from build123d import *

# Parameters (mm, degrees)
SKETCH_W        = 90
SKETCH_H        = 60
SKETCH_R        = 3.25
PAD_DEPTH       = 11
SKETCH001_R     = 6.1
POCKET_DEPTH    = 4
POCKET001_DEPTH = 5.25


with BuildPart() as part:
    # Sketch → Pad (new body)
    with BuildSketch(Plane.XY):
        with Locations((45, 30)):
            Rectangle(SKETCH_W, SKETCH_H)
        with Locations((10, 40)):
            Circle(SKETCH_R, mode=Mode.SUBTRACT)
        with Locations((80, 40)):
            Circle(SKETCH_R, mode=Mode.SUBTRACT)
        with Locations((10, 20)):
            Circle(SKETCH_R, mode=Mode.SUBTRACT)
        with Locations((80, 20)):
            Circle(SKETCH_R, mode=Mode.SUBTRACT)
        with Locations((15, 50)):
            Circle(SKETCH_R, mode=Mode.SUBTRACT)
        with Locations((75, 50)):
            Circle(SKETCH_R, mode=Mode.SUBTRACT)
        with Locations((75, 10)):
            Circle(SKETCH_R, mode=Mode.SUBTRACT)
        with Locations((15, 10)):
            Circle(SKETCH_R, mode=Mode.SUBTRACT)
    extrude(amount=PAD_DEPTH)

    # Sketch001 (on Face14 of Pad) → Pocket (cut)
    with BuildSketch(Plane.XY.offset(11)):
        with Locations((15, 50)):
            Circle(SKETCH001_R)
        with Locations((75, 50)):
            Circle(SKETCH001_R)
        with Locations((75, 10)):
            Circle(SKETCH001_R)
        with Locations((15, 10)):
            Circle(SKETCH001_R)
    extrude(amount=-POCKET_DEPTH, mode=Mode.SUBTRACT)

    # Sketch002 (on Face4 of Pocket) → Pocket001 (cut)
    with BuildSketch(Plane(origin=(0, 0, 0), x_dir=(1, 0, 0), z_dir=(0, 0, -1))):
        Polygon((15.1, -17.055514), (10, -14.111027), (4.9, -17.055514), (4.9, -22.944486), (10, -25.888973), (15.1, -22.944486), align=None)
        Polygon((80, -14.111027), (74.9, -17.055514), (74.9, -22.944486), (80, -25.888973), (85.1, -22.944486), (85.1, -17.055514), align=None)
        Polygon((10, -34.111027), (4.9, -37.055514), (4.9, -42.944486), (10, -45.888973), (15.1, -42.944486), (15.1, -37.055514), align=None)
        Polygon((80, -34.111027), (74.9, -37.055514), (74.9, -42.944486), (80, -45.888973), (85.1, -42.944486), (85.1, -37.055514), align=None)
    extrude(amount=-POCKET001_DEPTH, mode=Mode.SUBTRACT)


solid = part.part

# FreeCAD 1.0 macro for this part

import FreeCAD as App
import Part
import Sketcher

V = App.Vector
Q = App.Units.Quantity

doc = App.newDocument("Part")
body = doc.addObject("PartDesign::Body", "Body")

# Sketch on XY plane
sketch1 = doc.addObject("Sketcher::SketchObject", "Sketch")
body.addObject(sketch1)
sketch1.AttachmentSupport = (doc.XY_Plane, [""])
sketch1.MapMode = "FlatFace"
sketch1.addGeometry([
    Part.LineSegment(V(0, 60, 0), V(0, 0, 0)),  # 0
    Part.LineSegment(V(0, 0, 0), V(90, 0, 0)),  # 1
    Part.LineSegment(V(90, 0, 0), V(90, 60, 0)),  # 2
    Part.LineSegment(V(90, 60, 0), V(0, 60, 0)),  # 3
    Part.Circle(V(15, 10, 0), V(0, 0, 1), 3.25),  # 4
    Part.Circle(V(10, 20, 0), V(0, 0, 1), 3.25),  # 5
    Part.Circle(V(75, 10, 0), V(0, 0, 1), 3.25),  # 6
    Part.Circle(V(80, 20, 0), V(0, 0, 1), 3.25),  # 7
    Part.Circle(V(10, 40, 0), V(0, 0, 1), 3.25),  # 8
    Part.Circle(V(15, 50, 0), V(0, 0, 1), 3.25),  # 9
    Part.Circle(V(80, 40, 0), V(0, 0, 1), 3.25),  # 10
    Part.Circle(V(75, 50, 0), V(0, 0, 1), 3.25),  # 11
], False)
sketch1.addConstraint([
    Sketcher.Constraint("Coincident", 0, 2, 1, 1),
    Sketcher.Constraint("Coincident", 1, 2, 2, 1),
    Sketcher.Constraint("Coincident", 2, 2, 3, 1),
    Sketcher.Constraint("Coincident", 3, 2, 0, 1),
    Sketcher.Constraint("Vertical", 0),
    Sketcher.Constraint("Horizontal", 1),
    Sketcher.Constraint("Vertical", 2),
    Sketcher.Constraint("Horizontal", 3),
    Sketcher.Constraint("Coincident", 0, 2, -1, 1),
    Sketcher.Constraint("Equal", 4, 5),
    Sketcher.Constraint("Equal", 5, 6),
    Sketcher.Constraint("Equal", 6, 7),
    Sketcher.Constraint("Equal", 7, 8),
    Sketcher.Constraint("Equal", 8, 9),
    Sketcher.Constraint("Equal", 9, 10),
    Sketcher.Constraint("Equal", 10, 11),
    Sketcher.Constraint("Horizontal", 4, 3, 6, 3),
    Sketcher.Constraint("Horizontal", 5, 3, 7, 3),
    Sketcher.Constraint("Horizontal", 8, 3, 10, 3),
    Sketcher.Constraint("Horizontal", 9, 3, 11, 3),
    Sketcher.Constraint("Vertical", 5, 3, 8, 3),
    Sketcher.Constraint("Vertical", 4, 3, 9, 3),
    Sketcher.Constraint("Vertical", 7, 3, 10, 3),
    Sketcher.Constraint("Vertical", 6, 3, 11, 3),
    Sketcher.Constraint("Diameter", 4, 6.5),
    Sketcher.Constraint("DistanceX", 1, 1, 1, 2, 90.0),
    Sketcher.Constraint("DistanceY", 0, 2, 0, 1, 60.0),
    Sketcher.Constraint("DistanceX", -1, 1, 4, 3, 15.0),
    Sketcher.Constraint("DistanceY", -1, 1, 4, 3, 10.0),
    Sketcher.Constraint("DistanceX", -1, 1, 5, 3, 10.0),
    Sketcher.Constraint("DistanceY", -1, 1, 5, 3, 20.0),
    Sketcher.Constraint("DistanceX", -1, 1, 6, 3, 75.0),
    Sketcher.Constraint("DistanceX", -1, 1, 7, 3, 80.0),
    Sketcher.Constraint("DistanceY", -1, 1, 8, 3, 40.0),
    Sketcher.Constraint("DistanceY", -1, 1, 9, 3, 50.0),
])
pad1 = doc.addObject("PartDesign::Pad", "Pad")
body.addObject(pad1)
pad1.Profile = sketch1
pad1.Length = 11

# Sketch on XY plane
sketch2 = doc.addObject("Sketcher::SketchObject", "Sketch001")
body.addObject(sketch2)
sketch2.AttachmentSupport = (doc.XY_Plane, [""])
sketch2.MapMode = "FlatFace"
sketch2.AttachmentOffset = App.Placement(V(0, 0, 11), App.Rotation())
sketch2.addGeometry([
    Part.Circle(V(15, 50, 0), V(0, 0, 1), 6.1),
    Part.Circle(V(75, 50, 0), V(0, 0, 1), 6.1),
    Part.Circle(V(75, 10, 0), V(0, 0, 1), 6.1),
    Part.Circle(V(15, 10, 0), V(0, 0, 1), 6.1),
], False)
sketch2.addConstraint([
    Sketcher.Constraint("Equal", 0, 1),
    Sketcher.Constraint("Equal", 1, 2),
    Sketcher.Constraint("Equal", 2, 3),
    Sketcher.Constraint("Horizontal", 0, 3, 1, 3),
    Sketcher.Constraint("Horizontal", 2, 3, 3, 3),
    Sketcher.Constraint("Vertical", 1, 3, 2, 3),
    Sketcher.Constraint("Vertical", 0, 3, 3, 3),
    Sketcher.Constraint("Diameter", 0, 12.2),
    Sketcher.Constraint("DistanceX", -1, 1, 0, 3, 15.0),
    Sketcher.Constraint("DistanceY", -1, 1, 0, 3, 50.0),
    Sketcher.Constraint("DistanceX", -1, 1, 1, 3, 75.0),
    Sketcher.Constraint("DistanceY", -1, 1, 2, 3, 10.0),
])
pocket1 = doc.addObject("PartDesign::Pocket", "Pocket")
body.addObject(pocket1)
pocket1.Profile = sketch2
pocket1.Length = 4

# Sketch on XY plane
sketch3 = doc.addObject("Sketcher::SketchObject", "Sketch002")
body.addObject(sketch3)
sketch3.AttachmentSupport = (doc.XY_Plane, [""])
sketch3.MapMode = "FlatFace"
sketch3.addGeometry([
    Part.LineSegment(V(15.1, 17.055514, 0), V(10, 14.111027, 0)),  # 0
    Part.LineSegment(V(10, 14.111027, 0), V(4.9, 17.055514, 0)),  # 1
    Part.LineSegment(V(4.9, 17.055514, 0), V(4.9, 22.944486, 0)),  # 2
    Part.LineSegment(V(4.9, 22.944486, 0), V(10, 25.888973, 0)),  # 3
    Part.LineSegment(V(10, 25.888973, 0), V(15.1, 22.944486, 0)),  # 4
    Part.LineSegment(V(15.1, 22.944486, 0), V(15.1, 17.055514, 0)),  # 5
    Part.LineSegment(V(80, 14.111027, 0), V(74.9, 17.055514, 0)),  # 6
    Part.LineSegment(V(74.9, 17.055514, 0), V(74.9, 22.944486, 0)),  # 7
    Part.LineSegment(V(74.9, 22.944486, 0), V(80, 25.888973, 0)),  # 8
    Part.LineSegment(V(80, 25.888973, 0), V(85.1, 22.944486, 0)),  # 9
    Part.LineSegment(V(85.1, 22.944486, 0), V(85.1, 17.055514, 0)),  # 10
    Part.LineSegment(V(85.1, 17.055514, 0), V(80, 14.111027, 0)),  # 11
    Part.LineSegment(V(10, 34.111027, 0), V(4.9, 37.055514, 0)),  # 12
    Part.LineSegment(V(4.9, 37.055514, 0), V(4.9, 42.944486, 0)),  # 13
    Part.LineSegment(V(4.9, 42.944486, 0), V(10, 45.888973, 0)),  # 14
    Part.LineSegment(V(10, 45.888973, 0), V(15.1, 42.944486, 0)),  # 15
    Part.LineSegment(V(15.1, 42.944486, 0), V(15.1, 37.055514, 0)),  # 16
    Part.LineSegment(V(15.1, 37.055514, 0), V(10, 34.111027, 0)),  # 17
    Part.LineSegment(V(80, 34.111027, 0), V(74.9, 37.055514, 0)),  # 18
    Part.LineSegment(V(74.9, 37.055514, 0), V(74.9, 42.944486, 0)),  # 19
    Part.LineSegment(V(74.9, 42.944486, 0), V(80, 45.888973, 0)),  # 20
    Part.LineSegment(V(80, 45.888973, 0), V(85.1, 42.944486, 0)),  # 21
    Part.LineSegment(V(85.1, 42.944486, 0), V(85.1, 37.055514, 0)),  # 22
    Part.LineSegment(V(85.1, 37.055514, 0), V(80, 34.111027, 0)),  # 23
], False)
sketch3.addConstraint([
    Sketcher.Constraint("Coincident", 0, 2, 1, 1),
    Sketcher.Constraint("Coincident", 1, 2, 2, 1),
    Sketcher.Constraint("Coincident", 2, 2, 3, 1),
    Sketcher.Constraint("Coincident", 3, 2, 4, 1),
    Sketcher.Constraint("Coincident", 4, 2, 5, 1),
    Sketcher.Constraint("Coincident", 5, 2, 0, 1),
    Sketcher.Constraint("Coincident", 6, 2, 7, 1),
    Sketcher.Constraint("Coincident", 7, 2, 8, 1),
    Sketcher.Constraint("Coincident", 8, 2, 9, 1),
    Sketcher.Constraint("Coincident", 9, 2, 10, 1),
    Sketcher.Constraint("Coincident", 10, 2, 11, 1),
    Sketcher.Constraint("Coincident", 11, 2, 6, 1),
    Sketcher.Constraint("Coincident", 12, 2, 13, 1),
    Sketcher.Constraint("Coincident", 13, 2, 14, 1),
    Sketcher.Constraint("Coincident", 14, 2, 15, 1),
    Sketcher.Constraint("Coincident", 15, 2, 16, 1),
    Sketcher.Constraint("Coincident", 16, 2, 17, 1),
    Sketcher.Constraint("Coincident", 17, 2, 12, 1),
    Sketcher.Constraint("Coincident", 18, 2, 19, 1),
    Sketcher.Constraint("Coincident", 19, 2, 20, 1),
    Sketcher.Constraint("Coincident", 20, 2, 21, 1),
    Sketcher.Constraint("Coincident", 21, 2, 22, 1),
    Sketcher.Constraint("Coincident", 22, 2, 23, 1),
    Sketcher.Constraint("Coincident", 23, 2, 18, 1),
    Sketcher.Constraint("Vertical", 2),
    Sketcher.Constraint("Vertical", 5),
    Sketcher.Constraint("Vertical", 7),
    Sketcher.Constraint("Vertical", 10),
    Sketcher.Constraint("Vertical", 13),
    Sketcher.Constraint("Vertical", 16),
    Sketcher.Constraint("Vertical", 19),
    Sketcher.Constraint("Vertical", 22),
    Sketcher.Constraint("Parallel", 0, 3),
    Sketcher.Constraint("Parallel", 1, 4),
    Sketcher.Constraint("Parallel", 4, 6),
    Sketcher.Constraint("Parallel", 3, 8),
    Sketcher.Constraint("Parallel", 6, 9),
    Sketcher.Constraint("Parallel", 8, 11),
    Sketcher.Constraint("Parallel", 9, 12),
    Sketcher.Constraint("Parallel", 11, 14),
    Sketcher.Constraint("Parallel", 12, 15),
    Sketcher.Constraint("Parallel", 14, 17),
    Sketcher.Constraint("Parallel", 15, 18),
    Sketcher.Constraint("Parallel", 17, 20),
    Sketcher.Constraint("Parallel", 18, 21),
    Sketcher.Constraint("Parallel", 20, 23),
    Sketcher.Constraint("Horizontal", 2, 2, 4, 2),
    Sketcher.Constraint("Horizontal", 1, 2, 5, 2),
    Sketcher.Constraint("Horizontal", 5, 2, 6, 2),
    Sketcher.Constraint("Horizontal", 4, 2, 7, 2),
    Sketcher.Constraint("Horizontal", 3, 2, 8, 2),
    Sketcher.Constraint("Horizontal", 7, 2, 9, 2),
    Sketcher.Constraint("Horizontal", 6, 2, 10, 2),
    Sketcher.Constraint("Horizontal", 13, 2, 15, 2),
    Sketcher.Constraint("Horizontal", 12, 2, 16, 2),
    Sketcher.Constraint("Horizontal", 16, 2, 18, 2),
    Sketcher.Constraint("Horizontal", 15, 2, 19, 2),
    Sketcher.Constraint("Horizontal", 14, 2, 20, 2),
    Sketcher.Constraint("Horizontal", 19, 2, 21, 2),
    Sketcher.Constraint("Horizontal", 18, 2, 22, 2),
    Sketcher.Constraint("Vertical", 0, 2, 3, 2),
    Sketcher.Constraint("Vertical", 2, 2, 12, 2),
    Sketcher.Constraint("Vertical", 3, 2, 14, 2),
    Sketcher.Constraint("Vertical", 7, 2, 18, 2),
    Sketcher.Constraint("Equal", 10, 13),
    Sketcher.Constraint("Angle", 0, Q("-149.999995 deg")),
    Sketcher.Constraint("DistanceX", -1, 1, 0, 2, 10.0),
    Sketcher.Constraint("DistanceX", -1, 1, 8, 2, 80.0),
    Sketcher.Constraint("DistanceY", 1, 2, 12, 2, 20.0),
    Sketcher.Constraint("DistanceX", -1, 1, 1, 2, 4.9),
    Sketcher.Constraint("DistanceY", 13, 1, 13, 2, 5.888972),
    Sketcher.Constraint("DistanceY", -1, 1, 0, 2, 14.111027),
])
pocket2 = doc.addObject("PartDesign::Pocket", "Pocket001")
body.addObject(pocket2)
pocket2.Profile = sketch3
pocket2.Length = 5.25
pocket2.Reversed = True

doc.recompute()
